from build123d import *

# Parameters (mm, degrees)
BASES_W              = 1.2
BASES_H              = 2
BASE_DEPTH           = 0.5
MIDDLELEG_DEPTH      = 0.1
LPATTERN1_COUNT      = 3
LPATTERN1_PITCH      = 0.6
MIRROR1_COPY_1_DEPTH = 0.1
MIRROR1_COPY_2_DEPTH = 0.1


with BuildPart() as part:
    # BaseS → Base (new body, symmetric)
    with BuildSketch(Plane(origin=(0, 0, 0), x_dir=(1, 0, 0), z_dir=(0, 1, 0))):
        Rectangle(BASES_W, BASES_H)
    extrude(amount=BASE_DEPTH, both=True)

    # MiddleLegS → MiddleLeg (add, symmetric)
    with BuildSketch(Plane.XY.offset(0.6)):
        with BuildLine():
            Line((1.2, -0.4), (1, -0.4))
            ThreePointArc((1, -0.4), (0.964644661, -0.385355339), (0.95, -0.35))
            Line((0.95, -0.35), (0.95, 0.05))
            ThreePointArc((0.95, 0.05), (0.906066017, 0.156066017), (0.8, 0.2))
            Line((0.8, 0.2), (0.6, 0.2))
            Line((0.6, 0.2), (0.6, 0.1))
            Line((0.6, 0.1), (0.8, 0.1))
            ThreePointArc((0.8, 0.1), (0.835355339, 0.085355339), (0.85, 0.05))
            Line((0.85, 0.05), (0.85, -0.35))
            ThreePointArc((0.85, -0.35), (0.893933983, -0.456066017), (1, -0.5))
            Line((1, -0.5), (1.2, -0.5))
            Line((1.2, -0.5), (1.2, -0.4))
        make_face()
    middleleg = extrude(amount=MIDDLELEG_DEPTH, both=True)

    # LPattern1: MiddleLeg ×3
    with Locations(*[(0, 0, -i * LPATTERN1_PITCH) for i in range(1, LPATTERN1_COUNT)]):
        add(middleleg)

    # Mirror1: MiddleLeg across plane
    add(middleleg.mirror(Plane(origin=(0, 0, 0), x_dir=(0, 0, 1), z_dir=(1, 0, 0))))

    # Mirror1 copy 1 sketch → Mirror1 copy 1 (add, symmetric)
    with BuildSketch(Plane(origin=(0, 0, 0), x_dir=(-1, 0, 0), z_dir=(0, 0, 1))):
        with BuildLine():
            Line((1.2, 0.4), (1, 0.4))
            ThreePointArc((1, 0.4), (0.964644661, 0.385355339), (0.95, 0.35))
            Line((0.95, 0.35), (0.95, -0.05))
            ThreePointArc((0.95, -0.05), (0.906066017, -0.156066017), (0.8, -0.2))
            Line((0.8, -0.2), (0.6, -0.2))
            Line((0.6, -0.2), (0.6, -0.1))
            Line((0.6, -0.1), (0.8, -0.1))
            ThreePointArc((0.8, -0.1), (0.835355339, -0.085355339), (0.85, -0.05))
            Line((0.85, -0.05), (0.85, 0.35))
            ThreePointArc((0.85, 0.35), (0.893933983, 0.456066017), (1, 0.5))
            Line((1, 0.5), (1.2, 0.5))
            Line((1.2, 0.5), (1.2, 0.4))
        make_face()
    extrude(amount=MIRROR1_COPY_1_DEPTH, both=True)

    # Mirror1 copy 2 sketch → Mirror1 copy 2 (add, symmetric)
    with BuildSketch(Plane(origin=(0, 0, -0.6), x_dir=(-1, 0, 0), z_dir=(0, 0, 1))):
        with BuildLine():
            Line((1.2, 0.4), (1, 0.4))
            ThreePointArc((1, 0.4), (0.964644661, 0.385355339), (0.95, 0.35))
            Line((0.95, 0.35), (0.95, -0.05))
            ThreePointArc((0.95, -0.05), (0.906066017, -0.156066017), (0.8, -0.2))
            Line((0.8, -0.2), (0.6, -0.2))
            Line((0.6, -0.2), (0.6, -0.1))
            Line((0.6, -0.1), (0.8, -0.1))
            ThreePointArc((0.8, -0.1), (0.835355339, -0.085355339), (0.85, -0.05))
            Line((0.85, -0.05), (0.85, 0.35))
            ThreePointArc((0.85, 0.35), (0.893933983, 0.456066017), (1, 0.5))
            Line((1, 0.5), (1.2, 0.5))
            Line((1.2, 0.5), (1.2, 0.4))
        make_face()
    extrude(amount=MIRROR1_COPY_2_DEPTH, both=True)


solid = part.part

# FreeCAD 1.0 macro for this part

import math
import FreeCAD as App
import Part
import Sketcher
from FreeCAD import Vector
Q = App.Units.Quantity


def add_polygon(sketch, points):
    """Adds a closed chain of lines whose ends are joined by coincident constraints."""
    first, n = sketch.GeometryCount, len(points)
    for a, b in zip(points, points[1:] + points[:1]):
        sketch.addGeometry(Part.LineSegment(App.Vector(*a, 0), App.Vector(*b, 0)), False)
    for i in range(n):
        sketch.addConstraint(Sketcher.Constraint("Coincident", first + i, 2, first + (i + 1) % n, 1))

doc = App.newDocument("Part")
body = doc.addObject("PartDesign::Body", "Body")

# Sketch on XZ plane
sketch1 = body.newObject("Sketcher::SketchObject", "Sketch")
sketch1.AttachmentSupport = (doc.getObject("XZ_Plane"), [""])
sketch1.MapMode = "FlatFace"
add_polygon(sketch1, [(-0.6, -1), (-0.6, 1), (0.6, 1), (0.6, -1)])  # lines 0-3
sketch1.addConstraint([
    Sketcher.Constraint("Vertical", 0),
    Sketcher.Constraint("Horizontal", 1),
    Sketcher.Constraint("Vertical", 2),
    Sketcher.Constraint("Horizontal", 3),
    Sketcher.Constraint("Symmetric", 0, 2, 2, 2, -1, 1),
    Sketcher.Constraint("DistanceY", 0, 1, 0, 2, Q("2 mm")),
    Sketcher.Constraint("DistanceX", 1, 1, 1, 2, Q("1.2 mm")),
])
pad1 = body.newObject("PartDesign::Pad", "Pad")
pad1.Profile = sketch1
pad1.Length = 1
pad1.Midplane = True

# Sketch on XY plane
sketch2 = body.newObject("Sketcher::SketchObject", "Sketch001")
sketch2.AttachmentSupport = (doc.getObject("XY_Plane"), [""])
sketch2.MapMode = "FlatFace"
sketch2.AttachmentOffset = App.Placement(Vector(0, 0, 0.6), App.Rotation())
sketch2.addGeometry([
    Part.LineSegment(Vector(1.2, -0.4, 0), Vector(1, -0.4, 0)),  # 0
    Part.ArcOfCircle(Part.Circle(Vector(1, -0.35, 0), Vector(0, 0, 1), 0.05), math.radians(180), math.radians(270)),  # 1
    Part.LineSegment(Vector(0.95, -0.35, 0), Vector(0.95, 0.05, 0)),  # 2
    Part.ArcOfCircle(Part.Circle(Vector(0.8, 0.05, 0), Vector(0, 0, 1), 0.15), math.radians(0), math.radians(90)),  # 3
    Part.LineSegment(Vector(0.8, 0.2, 0), Vector(0.6, 0.2, 0)),  # 4
    Part.LineSegment(Vector(0.6, 0.2, 0), Vector(0.6, 0.1, 0)),  # 5
    Part.LineSegment(Vector(0.6, 0.1, 0), Vector(0.8, 0.1, 0)),  # 6
    Part.ArcOfCircle(Part.Circle(Vector(0.8, 0.05, 0), Vector(0, 0, 1), 0.05), math.radians(0), math.radians(90)),  # 7
    Part.LineSegment(Vector(0.85, 0.05, 0), Vector(0.85, -0.35, 0)),  # 8
    Part.ArcOfCircle(Part.Circle(Vector(1, -0.35, 0), Vector(0, 0, 1), 0.15), math.radians(-180), math.radians(-90)),  # 9
    Part.LineSegment(Vector(1, -0.5, 0), Vector(1.2, -0.5, 0)),  # 10
    Part.LineSegment(Vector(1.2, -0.5, 0), Vector(1.2, -0.4, 0)),  # 11
], False)
sketch2.addConstraint([
    Sketcher.Constraint("Tangent", 0, 2, 1, 2),
    Sketcher.Constraint("Tangent", 1, 1, 2, 1),
    Sketcher.Constraint("Tangent", 2, 2, 3, 1),
    Sketcher.Constraint("Tangent", 3, 2, 4, 1),
    Sketcher.Constraint("Coincident", 4, 2, 5, 1),
    Sketcher.Constraint("Coincident", 5, 2, 6, 1),
    Sketcher.Constraint("Tangent", 6, 2, 7, 2),
    Sketcher.Constraint("Tangent", 7, 1, 8, 1),
    Sketcher.Constraint("Tangent", 8, 2, 9, 1),
    Sketcher.Constraint("Tangent", 9, 2, 10, 1),
    Sketcher.Constraint("Coincident", 10, 2, 11, 1),
    Sketcher.Constraint("Coincident", 11, 2, 0, 1),
    Sketcher.Constraint("Horizontal", 0),
    Sketcher.Constraint("Vertical", 2),
    Sketcher.Constraint("Horizontal", 4),
    Sketcher.Constraint("Vertical", 5),
    Sketcher.Constraint("Horizontal", 6),
    Sketcher.Constraint("Vertical", 8),
    Sketcher.Constraint("Horizontal", 10),
    Sketcher.Constraint("Vertical", 11),
    Sketcher.Constraint("Coincident", 7, 3, 3, 3),
    Sketcher.Constraint("Coincident", 9, 3, 1, 3),
    Sketcher.Constraint("Equal", 1, 7),
    Sketcher.Constraint("Equal", 0, 4),
    Sketcher.Constraint("Radius", 1, Q("0.05 mm")),
    Sketcher.Constraint("Radius", 3, Q("0.15 mm")),
    Sketcher.Constraint("DistanceX", 0, 2, 0, 1, Q("0.2 mm")),
    Sketcher.Constraint("DistanceY", 2, 1, 2, 2, Q("0.4 mm")),
    Sketcher.Constraint("DistanceX", -1, 1, 1, 3, Q("1 mm")),
    Sketcher.Constraint("DistanceY", 0, 2, -1, 1, Q("0.4 mm")),
])
pad2 = body.newObject("PartDesign::Pad", "Pad001")
pad2.Profile = sketch2
pad2.Length = 0.2
pad2.Midplane = True
doc.recompute()

linearpattern = body.newObject("PartDesign::LinearPattern", "LinearPattern")
linearpattern.Originals = [pad2]
linearpattern.Direction = (doc.getObject("Z_Axis"), [""])
linearpattern.Mode = "offset"
linearpattern.Offset = 0.6
linearpattern.Occurrences = 3
linearpattern.Reversed = True
body.Tip = linearpattern
doc.recompute()

mirrored = body.newObject("PartDesign::Mirrored", "Mirrored")
mirrored.Originals = [pad2]
mirrored.MirrorPlane = (doc.getObject("YZ_Plane"), [""])
body.Tip = mirrored

# Sketch on XY plane
sketch3 = body.newObject("Sketcher::SketchObject", "Sketch002")
sketch3.AttachmentSupport = (doc.getObject("XY_Plane"), [""])
sketch3.MapMode = "FlatFace"
sketch3.addGeometry([
    Part.LineSegment(Vector(-1, -0.4, 0), Vector(-1.2, -0.4, 0)),  # 0
    Part.LineSegment(Vector(-1.2, -0.4, 0), Vector(-1.2, -0.5, 0)),  # 1
    Part.LineSegment(Vector(-1.2, -0.5, 0), Vector(-1, -0.5, 0)),  # 2
    Part.ArcOfCircle(Part.Circle(Vector(-1, -0.35, 0), Vector(0, 0, 1), 0.15), math.radians(-90), math.radians(0)),  # 3
    Part.LineSegment(Vector(-0.85, -0.35, 0), Vector(-0.85, 0.05, 0)),  # 4
    Part.ArcOfCircle(Part.Circle(Vector(-0.8, 0.05, 0), Vector(0, 0, 1), 0.05), math.radians(90), math.radians(180)),  # 5
    Part.LineSegment(Vector(-0.8, 0.1, 0), Vector(-0.6, 0.1, 0)),  # 6
    Part.LineSegment(Vector(-0.6, 0.1, 0), Vector(-0.6, 0.2, 0)),  # 7
    Part.LineSegment(Vector(-0.6, 0.2, 0), Vector(-0.8, 0.2, 0)),  # 8
    Part.ArcOfCircle(Part.Circle(Vector(-0.8, 0.05, 0), Vector(0, 0, 1), 0.15), math.radians(90), math.radians(180)),  # 9
    Part.LineSegment(Vector(-0.95, 0.05, 0), Vector(-0.95, -0.35, 0)),  # 10
    Part.ArcOfCircle(Part.Circle(Vector(-1, -0.35, 0), Vector(0, 0, 1), 0.05), math.radians(-90), math.radians(0)),  # 11
], False)
sketch3.addConstraint([
    Sketcher.Constraint("Coincident", 0, 2, 1, 1),
    Sketcher.Constraint("Coincident", 1, 2, 2, 1),
    Sketcher.Constraint("Tangent", 2, 2, 3, 1),
    Sketcher.Constraint("Tangent", 3, 2, 4, 1),
    Sketcher.Constraint("Tangent", 4, 2, 5, 2),
    Sketcher.Constraint("Tangent", 5, 1, 6, 1),
    Sketcher.Constraint("Coincident", 6, 2, 7, 1),
    Sketcher.Constraint("Coincident", 7, 2, 8, 1),
    Sketcher.Constraint("Tangent", 8, 2, 9, 1),
    Sketcher.Constraint("Tangent", 9, 2, 10, 1),
    Sketcher.Constraint("Tangent", 10, 2, 11, 2),
    Sketcher.Constraint("Tangent", 11, 1, 0, 1),
    Sketcher.Constraint("Horizontal", 0),
    Sketcher.Constraint("Vertical", 1),
    Sketcher.Constraint("Horizontal", 2),
    Sketcher.Constraint("Vertical", 4),
    Sketcher.Constraint("Horizontal", 6),
    Sketcher.Constraint("Vertical", 7),
    Sketcher.Constraint("Horizontal", 8),
    Sketcher.Constraint("Vertical", 10),
    Sketcher.Constraint("Coincident", 9, 3, 5, 3),
    Sketcher.Constraint("Coincident", 11, 3, 3, 3),
    Sketcher.Constraint("Equal", 3, 9),
    Sketcher.Constraint("Equal", 2, 6),
    Sketcher.Constraint("Radius", 3, Q("0.15 mm")),
    Sketcher.Constraint("Radius", 5, Q("0.05 mm")),
    Sketcher.Constraint("DistanceX", 0, 2, 0, 1, Q("0.2 mm")),
    Sketcher.Constraint("DistanceY", 4, 1, 4, 2, Q("0.4 mm")),
    Sketcher.Constraint("DistanceX", 3, 3, -1, 1, Q("1 mm")),
    Sketcher.Constraint("DistanceY", 0, 2, -1, 1, Q("0.4 mm")),
])
pad3 = body.newObject("PartDesign::Pad", "Pad002")
pad3.Profile = sketch3
pad3.Length = 0.2
pad3.Midplane = True

# Sketch on XY plane
sketch4 = body.newObject("Sketcher::SketchObject", "Sketch003")
sketch4.AttachmentSupport = (doc.getObject("XY_Plane"), [""])
sketch4.MapMode = "FlatFace"
sketch4.AttachmentOffset = App.Placement(Vector(0, 0, -0.6), App.Rotation())
sketch4.addGeometry([
    Part.LineSegment(Vector(-1, -0.4, 0), Vector(-1.2, -0.4, 0)),  # 0
    Part.LineSegment(Vector(-1.2, -0.4, 0), Vector(-1.2, -0.5, 0)),  # 1
    Part.LineSegment(Vector(-1.2, -0.5, 0), Vector(-1, -0.5, 0)),  # 2
    Part.ArcOfCircle(Part.Circle(Vector(-1, -0.35, 0), Vector(0, 0, 1), 0.15), math.radians(-90), math.radians(0)),  # 3
    Part.LineSegment(Vector(-0.85, -0.35, 0), Vector(-0.85, 0.05, 0)),  # 4
    Part.ArcOfCircle(Part.Circle(Vector(-0.8, 0.05, 0), Vector(0, 0, 1), 0.05), math.radians(90), math.radians(180)),  # 5
    Part.LineSegment(Vector(-0.8, 0.1, 0), Vector(-0.6, 0.1, 0)),  # 6
    Part.LineSegment(Vector(-0.6, 0.1, 0), Vector(-0.6, 0.2, 0)),  # 7
    Part.LineSegment(Vector(-0.6, 0.2, 0), Vector(-0.8, 0.2, 0)),  # 8
    Part.ArcOfCircle(Part.Circle(Vector(-0.8, 0.05, 0), Vector(0, 0, 1), 0.15), math.radians(90), math.radians(180)),  # 9
    Part.LineSegment(Vector(-0.95, 0.05, 0), Vector(-0.95, -0.35, 0)),  # 10
    Part.ArcOfCircle(Part.Circle(Vector(-1, -0.35, 0), Vector(0, 0, 1), 0.05), math.radians(-90), math.radians(0)),  # 11
], False)
sketch4.addConstraint([
    Sketcher.Constraint("Coincident", 0, 2, 1, 1),
    Sketcher.Constraint("Coincident", 1, 2, 2, 1),
    Sketcher.Constraint("Tangent", 2, 2, 3, 1),
    Sketcher.Constraint("Tangent", 3, 2, 4, 1),
    Sketcher.Constraint("Tangent", 4, 2, 5, 2),
    Sketcher.Constraint("Tangent", 5, 1, 6, 1),
    Sketcher.Constraint("Coincident", 6, 2, 7, 1),
    Sketcher.Constraint("Coincident", 7, 2, 8, 1),
    Sketcher.Constraint("Tangent", 8, 2, 9, 1),
    Sketcher.Constraint("Tangent", 9, 2, 10, 1),
    Sketcher.Constraint("Tangent", 10, 2, 11, 2),
    Sketcher.Constraint("Tangent", 11, 1, 0, 1),
    Sketcher.Constraint("Horizontal", 0),
    Sketcher.Constraint("Vertical", 1),
    Sketcher.Constraint("Horizontal", 2),
    Sketcher.Constraint("Vertical", 4),
    Sketcher.Constraint("Horizontal", 6),
    Sketcher.Constraint("Vertical", 7),
    Sketcher.Constraint("Horizontal", 8),
    Sketcher.Constraint("Vertical", 10),
    Sketcher.Constraint("Coincident", 9, 3, 5, 3),
    Sketcher.Constraint("Coincident", 11, 3, 3, 3),
    Sketcher.Constraint("Equal", 3, 9),
    Sketcher.Constraint("Equal", 2, 6),
    Sketcher.Constraint("Radius", 3, Q("0.15 mm")),
    Sketcher.Constraint("Radius", 5, Q("0.05 mm")),
    Sketcher.Constraint("DistanceX", 0, 2, 0, 1, Q("0.2 mm")),
    Sketcher.Constraint("DistanceY", 4, 1, 4, 2, Q("0.4 mm")),
    Sketcher.Constraint("DistanceX", 3, 3, -1, 1, Q("1 mm")),
    Sketcher.Constraint("DistanceY", 0, 2, -1, 1, Q("0.4 mm")),
])
pad4 = body.newObject("PartDesign::Pad", "Pad003")
pad4.Profile = sketch4
pad4.Length = 0.2
pad4.Midplane = True

doc.recompute()
